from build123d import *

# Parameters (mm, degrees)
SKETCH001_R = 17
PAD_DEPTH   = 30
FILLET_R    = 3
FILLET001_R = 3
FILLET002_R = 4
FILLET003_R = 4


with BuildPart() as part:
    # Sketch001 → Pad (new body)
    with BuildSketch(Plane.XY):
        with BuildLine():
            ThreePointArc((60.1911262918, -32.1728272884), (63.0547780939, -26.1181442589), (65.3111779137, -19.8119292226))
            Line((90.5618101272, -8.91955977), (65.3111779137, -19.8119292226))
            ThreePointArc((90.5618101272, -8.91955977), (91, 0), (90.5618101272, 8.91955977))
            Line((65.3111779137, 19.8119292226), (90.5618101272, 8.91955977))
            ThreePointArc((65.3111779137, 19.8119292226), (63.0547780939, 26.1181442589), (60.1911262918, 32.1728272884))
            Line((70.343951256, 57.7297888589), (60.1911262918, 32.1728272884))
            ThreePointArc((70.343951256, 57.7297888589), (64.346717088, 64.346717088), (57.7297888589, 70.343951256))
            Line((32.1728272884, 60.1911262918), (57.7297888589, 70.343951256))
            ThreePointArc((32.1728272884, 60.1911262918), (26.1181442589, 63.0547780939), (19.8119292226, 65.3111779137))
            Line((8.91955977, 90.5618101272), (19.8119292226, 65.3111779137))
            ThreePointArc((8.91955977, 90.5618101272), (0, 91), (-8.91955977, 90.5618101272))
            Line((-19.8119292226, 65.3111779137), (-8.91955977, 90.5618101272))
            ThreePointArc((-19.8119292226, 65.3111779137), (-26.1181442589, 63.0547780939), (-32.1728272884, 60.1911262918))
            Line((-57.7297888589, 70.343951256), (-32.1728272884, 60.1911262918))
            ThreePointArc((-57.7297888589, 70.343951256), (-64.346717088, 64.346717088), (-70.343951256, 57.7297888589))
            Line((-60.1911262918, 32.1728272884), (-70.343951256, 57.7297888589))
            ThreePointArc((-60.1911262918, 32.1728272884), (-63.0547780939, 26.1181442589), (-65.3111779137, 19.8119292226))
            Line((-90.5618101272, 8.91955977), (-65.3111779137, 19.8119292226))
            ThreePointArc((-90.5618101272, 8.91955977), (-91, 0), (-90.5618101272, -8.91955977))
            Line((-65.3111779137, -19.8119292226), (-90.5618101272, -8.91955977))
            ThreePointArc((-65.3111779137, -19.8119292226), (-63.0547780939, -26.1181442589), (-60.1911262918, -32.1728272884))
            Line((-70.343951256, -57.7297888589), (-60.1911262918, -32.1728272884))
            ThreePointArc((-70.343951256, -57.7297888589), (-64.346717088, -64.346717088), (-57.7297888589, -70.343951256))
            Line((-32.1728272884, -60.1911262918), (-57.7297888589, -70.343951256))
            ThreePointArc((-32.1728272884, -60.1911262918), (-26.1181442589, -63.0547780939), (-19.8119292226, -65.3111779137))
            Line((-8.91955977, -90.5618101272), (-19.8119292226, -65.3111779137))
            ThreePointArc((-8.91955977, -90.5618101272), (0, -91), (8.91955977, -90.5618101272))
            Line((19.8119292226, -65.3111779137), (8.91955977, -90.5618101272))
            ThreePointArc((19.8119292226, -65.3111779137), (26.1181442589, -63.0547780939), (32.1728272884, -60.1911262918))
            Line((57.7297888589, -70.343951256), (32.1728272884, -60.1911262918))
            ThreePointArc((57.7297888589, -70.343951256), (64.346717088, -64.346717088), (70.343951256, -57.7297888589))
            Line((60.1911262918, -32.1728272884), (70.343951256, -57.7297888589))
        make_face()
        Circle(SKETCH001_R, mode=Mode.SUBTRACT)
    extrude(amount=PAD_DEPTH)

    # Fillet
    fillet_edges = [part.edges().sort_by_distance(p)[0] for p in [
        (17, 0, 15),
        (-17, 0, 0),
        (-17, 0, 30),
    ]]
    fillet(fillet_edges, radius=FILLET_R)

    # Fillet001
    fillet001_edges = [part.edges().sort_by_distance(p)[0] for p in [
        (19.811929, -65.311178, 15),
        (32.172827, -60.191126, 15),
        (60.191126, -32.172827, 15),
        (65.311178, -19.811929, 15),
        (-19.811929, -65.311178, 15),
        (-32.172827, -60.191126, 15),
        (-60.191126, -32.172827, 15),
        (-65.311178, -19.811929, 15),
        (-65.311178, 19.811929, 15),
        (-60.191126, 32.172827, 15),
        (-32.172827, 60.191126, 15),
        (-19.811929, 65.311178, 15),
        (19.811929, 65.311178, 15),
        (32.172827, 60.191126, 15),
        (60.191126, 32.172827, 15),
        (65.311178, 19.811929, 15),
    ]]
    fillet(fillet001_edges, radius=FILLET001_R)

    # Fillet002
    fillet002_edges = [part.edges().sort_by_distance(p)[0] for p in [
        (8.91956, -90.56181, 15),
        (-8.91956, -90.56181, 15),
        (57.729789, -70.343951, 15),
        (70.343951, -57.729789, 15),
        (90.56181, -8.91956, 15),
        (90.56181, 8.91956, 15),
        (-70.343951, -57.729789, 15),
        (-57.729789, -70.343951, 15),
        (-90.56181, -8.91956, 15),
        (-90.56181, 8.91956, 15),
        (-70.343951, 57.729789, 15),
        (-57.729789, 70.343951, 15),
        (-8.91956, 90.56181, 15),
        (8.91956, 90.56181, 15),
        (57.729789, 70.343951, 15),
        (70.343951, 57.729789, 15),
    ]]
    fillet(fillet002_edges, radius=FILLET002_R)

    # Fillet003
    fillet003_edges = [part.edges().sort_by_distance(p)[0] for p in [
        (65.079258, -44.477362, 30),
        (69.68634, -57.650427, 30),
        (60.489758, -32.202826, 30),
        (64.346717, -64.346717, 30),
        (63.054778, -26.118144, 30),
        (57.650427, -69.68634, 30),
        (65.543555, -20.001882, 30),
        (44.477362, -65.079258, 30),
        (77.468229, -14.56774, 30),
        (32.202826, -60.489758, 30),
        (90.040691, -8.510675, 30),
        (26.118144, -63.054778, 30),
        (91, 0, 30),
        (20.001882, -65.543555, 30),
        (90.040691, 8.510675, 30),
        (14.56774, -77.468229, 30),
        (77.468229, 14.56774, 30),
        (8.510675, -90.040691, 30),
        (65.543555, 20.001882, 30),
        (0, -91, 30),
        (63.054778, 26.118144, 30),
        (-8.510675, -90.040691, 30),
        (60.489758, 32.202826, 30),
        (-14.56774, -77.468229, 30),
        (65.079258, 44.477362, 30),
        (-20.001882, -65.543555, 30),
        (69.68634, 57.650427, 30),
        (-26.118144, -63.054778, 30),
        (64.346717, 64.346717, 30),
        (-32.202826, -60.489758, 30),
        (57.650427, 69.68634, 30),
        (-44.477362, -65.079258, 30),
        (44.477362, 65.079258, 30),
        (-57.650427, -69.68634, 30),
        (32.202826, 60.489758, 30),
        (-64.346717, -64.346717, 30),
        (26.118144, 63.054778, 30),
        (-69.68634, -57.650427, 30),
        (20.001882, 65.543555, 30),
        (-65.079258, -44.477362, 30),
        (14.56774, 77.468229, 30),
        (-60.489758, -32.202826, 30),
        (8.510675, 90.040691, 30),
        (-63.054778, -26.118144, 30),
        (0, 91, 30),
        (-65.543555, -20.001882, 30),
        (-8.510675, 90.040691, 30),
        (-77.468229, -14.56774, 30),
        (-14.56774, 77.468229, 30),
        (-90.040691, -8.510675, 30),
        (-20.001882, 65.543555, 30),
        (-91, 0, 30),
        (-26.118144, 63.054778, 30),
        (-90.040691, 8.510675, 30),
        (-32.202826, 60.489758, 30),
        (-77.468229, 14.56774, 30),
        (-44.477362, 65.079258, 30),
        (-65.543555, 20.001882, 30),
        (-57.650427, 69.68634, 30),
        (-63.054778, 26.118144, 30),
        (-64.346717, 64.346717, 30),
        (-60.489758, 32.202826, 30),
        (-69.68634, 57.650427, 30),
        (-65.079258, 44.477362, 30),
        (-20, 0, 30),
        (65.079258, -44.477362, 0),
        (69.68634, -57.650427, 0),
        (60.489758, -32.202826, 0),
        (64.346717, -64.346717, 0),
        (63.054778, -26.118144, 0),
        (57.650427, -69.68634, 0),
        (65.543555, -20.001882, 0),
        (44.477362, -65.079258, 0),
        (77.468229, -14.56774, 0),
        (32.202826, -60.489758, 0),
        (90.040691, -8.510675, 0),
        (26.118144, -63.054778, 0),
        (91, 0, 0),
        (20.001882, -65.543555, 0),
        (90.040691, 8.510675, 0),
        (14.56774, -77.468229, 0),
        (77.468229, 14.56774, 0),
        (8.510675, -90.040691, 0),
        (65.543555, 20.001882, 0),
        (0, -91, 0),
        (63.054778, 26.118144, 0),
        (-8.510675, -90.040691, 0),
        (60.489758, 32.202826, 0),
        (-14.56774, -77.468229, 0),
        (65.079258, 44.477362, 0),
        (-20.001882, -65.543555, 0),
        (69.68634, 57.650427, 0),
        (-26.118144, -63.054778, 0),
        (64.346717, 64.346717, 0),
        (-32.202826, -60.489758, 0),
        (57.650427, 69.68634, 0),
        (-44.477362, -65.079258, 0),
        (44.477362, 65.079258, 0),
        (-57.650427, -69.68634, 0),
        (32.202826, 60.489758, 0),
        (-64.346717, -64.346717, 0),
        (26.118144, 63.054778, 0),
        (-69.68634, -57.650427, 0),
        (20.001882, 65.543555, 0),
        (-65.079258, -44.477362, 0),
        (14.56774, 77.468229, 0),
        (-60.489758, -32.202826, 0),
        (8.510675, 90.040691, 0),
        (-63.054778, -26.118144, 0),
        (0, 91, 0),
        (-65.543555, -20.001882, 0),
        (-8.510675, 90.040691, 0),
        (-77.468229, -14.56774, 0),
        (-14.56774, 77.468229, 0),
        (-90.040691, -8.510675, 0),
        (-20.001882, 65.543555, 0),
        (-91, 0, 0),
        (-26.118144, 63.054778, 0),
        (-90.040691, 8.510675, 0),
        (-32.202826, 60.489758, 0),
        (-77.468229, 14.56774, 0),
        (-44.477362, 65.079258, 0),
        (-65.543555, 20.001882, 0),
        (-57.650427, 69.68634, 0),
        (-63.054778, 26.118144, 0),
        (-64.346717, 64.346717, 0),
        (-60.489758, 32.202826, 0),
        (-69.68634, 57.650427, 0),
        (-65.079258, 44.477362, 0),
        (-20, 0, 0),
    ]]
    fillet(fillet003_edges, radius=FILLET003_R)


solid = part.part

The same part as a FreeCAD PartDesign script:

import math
import FreeCAD as App
import Part
import Sketcher

V = App.Vector
Q = App.Units.Quantity


def edges_at(feature, points):
    """Names of the edges that pass closest to the given points."""
    edges = feature.Shape.Edges
    near = lambda p: min(range(len(edges)), key=lambda i: edges[i].distToShape(Part.Vertex(*p))[0])
    return sorted({f"Edge{near(p) + 1}" for p in points})

doc = App.newDocument("Part")
body = doc.addObject("PartDesign::Body", "Body")

sketch1 = body.newObject("Sketcher::SketchObject", "Sketch")
sketch1.AttachmentSupport = (doc.getObject("XY_Plane"), [""])
sketch1.MapMode = "FlatFace"
sketch1.addGeometry(Part.ArcOfCircle(Part.Circle(V(0, 0, 0), V(0, 0, 1), 68.25), math.radians(-28.125), math.radians(-16.875)), False)
sketch1.addGeometry(Part.LineSegment(V(65.311178, -19.811929, 0), V(90.56181, -8.91956, 0)), False)
sketch1.addGeometry(Part.ArcOfCircle(Part.Circle(V(0, 0, 0), V(0, 0, 1), 91), math.radians(-5.625), math.radians(5.625)), False)
sketch1.addGeometry(Part.LineSegment(V(90.56181, 8.91956, 0), V(65.311178, 19.811929, 0)), False)
sketch1.addGeometry(Part.ArcOfCircle(Part.Circle(V(0, 0, 0), V(0, 0, 1), 68.25), math.radians(16.875), math.radians(28.125)), False)
sketch1.addGeometry(Part.LineSegment(V(60.191126, 32.172827, 0), V(70.343951, 57.729789, 0)), False)
sketch1.addGeometry(Part.ArcOfCircle(Part.Circle(V(0, 0, 0), V(0, 0, 1), 91), math.radians(39.375), math.radians(50.625)), False)
sketch1.addGeometry(Part.LineSegment(V(57.729789, 70.343951, 0), V(32.172827, 60.191126, 0)), False)
sketch1.addGeometry(Part.ArcOfCircle(Part.Circle(V(0, 0, 0), V(0, 0, 1), 68.25), math.radians(61.875), math.radians(73.125)), False)
sketch1.addGeometry(Part.LineSegment(V(19.811929, 65.311178, 0), V(8.91956, 90.56181, 0)), False)
sketch1.addGeometry(Part.ArcOfCircle(Part.Circle(V(0, 0, 0), V(0, 0, 1), 91), math.radians(84.375), math.radians(95.625)), False)
sketch1.addGeometry(Part.LineSegment(V(-8.91956, 90.56181, 0), V(-19.811929, 65.311178, 0)), False)
sketch1.addGeometry(Part.ArcOfCircle(Part.Circle(V(0, 0, 0), V(0, 0, 1), 68.25), math.radians(106.875), math.radians(118.125)), False)
sketch1.addGeometry(Part.LineSegment(V(-32.172827, 60.191126, 0), V(-57.729789, 70.343951, 0)), False)
sketch1.addGeometry(Part.ArcOfCircle(Part.Circle(V(0, 0, 0), V(0, 0, 1), 91), math.radians(129.375), math.radians(140.625)), False)
sketch1.addGeometry(Part.LineSegment(V(-70.343951, 57.729789, 0), V(-60.191126, 32.172827, 0)), False)
sketch1.addGeometry(Part.ArcOfCircle(Part.Circle(V(0, 0, 0), V(0, 0, 1), 68.25), math.radians(151.875), math.radians(163.125)), False)
sketch1.addGeometry(Part.LineSegment(V(-65.311178, 19.811929, 0), V(-90.56181, 8.91956, 0)), False)
sketch1.addGeometry(Part.ArcOfCircle(Part.Circle(V(0, 0, 0), V(0, 0, 1), 91), math.radians(174.375), math.radians(185.625)), False)
sketch1.addGeometry(Part.LineSegment(V(-90.56181, -8.91956, 0), V(-65.311178, -19.811929, 0)), False)
sketch1.addGeometry(Part.ArcOfCircle(Part.Circle(V(0, 0, 0), V(0, 0, 1), 68.25), math.radians(-163.125), math.radians(-151.875)), False)
sketch1.addGeometry(Part.LineSegment(V(-60.191126, -32.172827, 0), V(-70.343951, -57.729789, 0)), False)
sketch1.addGeometry(Part.ArcOfCircle(Part.Circle(V(0, 0, 0), V(0, 0, 1), 91), math.radians(-140.625), math.radians(-129.375)), False)
sketch1.addGeometry(Part.LineSegment(V(-57.729789, -70.343951, 0), V(-32.172827, -60.191126, 0)), False)
sketch1.addGeometry(Part.ArcOfCircle(Part.Circle(V(0, 0, 0), V(0, 0, 1), 68.25), math.radians(-118.125), math.radians(-106.875)), False)
sketch1.addGeometry(Part.LineSegment(V(-19.811929, -65.311178, 0), V(-8.91956, -90.56181, 0)), False)
sketch1.addGeometry(Part.ArcOfCircle(Part.Circle(V(0, 0, 0), V(0, 0, 1), 91), math.radians(-95.625), math.radians(-84.375)), False)
sketch1.addGeometry(Part.LineSegment(V(8.91956, -90.56181, 0), V(19.811929, -65.311178, 0)), False)
sketch1.addGeometry(Part.ArcOfCircle(Part.Circle(V(0, 0, 0), V(0, 0, 1), 68.25), math.radians(-73.125), math.radians(-61.875)), False)
sketch1.addGeometry(Part.LineSegment(V(32.172827, -60.191126, 0), V(57.729789, -70.343951, 0)), False)
sketch1.addGeometry(Part.ArcOfCircle(Part.Circle(V(0, 0, 0), V(0, 0, 1), 91), math.radians(-50.625), math.radians(-39.375)), False)
sketch1.addGeometry(Part.LineSegment(V(70.343951, -57.729789, 0), V(60.191126, -32.172827, 0)), False)
sketch1.addGeometry(Part.Circle(V(0, 0, 0), V(0, 0, 1), 17), False)
sketch1.addConstraint(Sketcher.Constraint("Coincident", 0, 2, 1, 1))
sketch1.addConstraint(Sketcher.Constraint("Coincident", 1, 2, 2, 1))
sketch1.addConstraint(Sketcher.Constraint("Coincident", 2, 2, 3, 1))
sketch1.addConstraint(Sketcher.Constraint("Coincident", 3, 2, 4, 1))
sketch1.addConstraint(Sketcher.Constraint("Coincident", 4, 2, 5, 1))
sketch1.addConstraint(Sketcher.Constraint("Coincident", 5, 2, 6, 1))
sketch1.addConstraint(Sketcher.Constraint("Coincident", 6, 2, 7, 1))
sketch1.addConstraint(Sketcher.Constraint("Coincident", 7, 2, 8, 1))
sketch1.addConstraint(Sketcher.Constraint("Coincident", 8, 2, 9, 1))
sketch1.addConstraint(Sketcher.Constraint("Coincident", 9, 2, 10, 1))
sketch1.addConstraint(Sketcher.Constraint("Coincident", 10, 2, 11, 1))
sketch1.addConstraint(Sketcher.Constraint("Coincident", 11, 2, 12, 1))
sketch1.addConstraint(Sketcher.Constraint("Coincident", 12, 2, 13, 1))
sketch1.addConstraint(Sketcher.Constraint("Coincident", 13, 2, 14, 1))
sketch1.addConstraint(Sketcher.Constraint("Coincident", 14, 2, 15, 1))
sketch1.addConstraint(Sketcher.Constraint("Coincident", 15, 2, 16, 1))
sketch1.addConstraint(Sketcher.Constraint("Coincident", 16, 2, 17, 1))
sketch1.addConstraint(Sketcher.Constraint("Coincident", 17, 2, 18, 1))
sketch1.addConstraint(Sketcher.Constraint("Coincident", 18, 2, 19, 1))
sketch1.addConstraint(Sketcher.Constraint("Coincident", 19, 2, 20, 1))
sketch1.addConstraint(Sketcher.Constraint("Coincident", 20, 2, 21, 1))
sketch1.addConstraint(Sketcher.Constraint("Coincident", 21, 2, 22, 1))
sketch1.addConstraint(Sketcher.Constraint("Coincident", 22, 2, 23, 1))
sketch1.addConstraint(Sketcher.Constraint("Coincident", 23, 2, 24, 1))
sketch1.addConstraint(Sketcher.Constraint("Coincident", 24, 2, 25, 1))
sketch1.addConstraint(Sketcher.Constraint("Coincident", 25, 2, 26, 1))
sketch1.addConstraint(Sketcher.Constraint("Coincident", 26, 2, 27, 1))
sketch1.addConstraint(Sketcher.Constraint("Coincident", 27, 2, 28, 1))
sketch1.addConstraint(Sketcher.Constraint("Coincident", 28, 2, 29, 1))
sketch1.addConstraint(Sketcher.Constraint("Coincident", 29, 2, 30, 1))
sketch1.addConstraint(Sketcher.Constraint("Coincident", 30, 2, 31, 1))
sketch1.addConstraint(Sketcher.Constraint("Coincident", 31, 2, 0, 1))
sketch1.addConstraint(Sketcher.Constraint("Coincident", 0, 3, -1, 1))
sketch1.addConstraint(Sketcher.Constraint("Coincident", 2, 3, -1, 1))
sketch1.addConstraint(Sketcher.Constraint("Coincident", 4, 3, -1, 1))
sketch1.addConstraint(Sketcher.Constraint("Coincident", 6, 3, -1, 1))
sketch1.addConstraint(Sketcher.Constraint("Coincident", 8, 3, -1, 1))
sketch1.addConstraint(Sketcher.Constraint("Coincident", 10, 3, -1, 1))
sketch1.addConstraint(Sketcher.Constraint("Coincident", 12, 3, -1, 1))
sketch1.addConstraint(Sketcher.Constraint("Coincident", 14, 3, -1, 1))
sketch1.addConstraint(Sketcher.Constraint("Coincident", 16, 3, -1, 1))
sketch1.addConstraint(Sketcher.Constraint("Coincident", 18, 3, -1, 1))
sketch1.addConstraint(Sketcher.Constraint("Coincident", 20, 3, -1, 1))
sketch1.addConstraint(Sketcher.Constraint("Coincident", 22, 3, -1, 1))
sketch1.addConstraint(Sketcher.Constraint("Coincident", 24, 3, -1, 1))
sketch1.addConstraint(Sketcher.Constraint("Coincident", 26, 3, -1, 1))
sketch1.addConstraint(Sketcher.Constraint("Coincident", 28, 3, -1, 1))
sketch1.addConstraint(Sketcher.Constraint("Coincident", 30, 3, -1, 1))
sketch1.addConstraint(Sketcher.Constraint("Coincident", 32, 3, -1, 1))
sketch1.addConstraint(Sketcher.Constraint("Equal", 0, 4))
sketch1.addConstraint(Sketcher.Constraint("Equal", 2, 6))
sketch1.addConstraint(Sketcher.Constraint("Equal", 4, 8))
sketch1.addConstraint(Sketcher.Constraint("Equal", 6, 10))
sketch1.addConstraint(Sketcher.Constraint("Equal", 8, 12))
sketch1.addConstraint(Sketcher.Constraint("Equal", 10, 14))
sketch1.addConstraint(Sketcher.Constraint("Equal", 12, 16))
sketch1.addConstraint(Sketcher.Constraint("Equal", 14, 18))
sketch1.addConstraint(Sketcher.Constraint("Equal", 16, 20))
sketch1.addConstraint(Sketcher.Constraint("Equal", 18, 22))
sketch1.addConstraint(Sketcher.Constraint("Equal", 20, 24))
sketch1.addConstraint(Sketcher.Constraint("Equal", 22, 26))
sketch1.addConstraint(Sketcher.Constraint("Equal", 24, 28))
sketch1.addConstraint(Sketcher.Constraint("Equal", 26, 30))
sketch1.addConstraint(Sketcher.Constraint("Perpendicular", 1, 9))
sketch1.addConstraint(Sketcher.Constraint("Perpendicular", 3, 11))
sketch1.addConstraint(Sketcher.Constraint("Perpendicular", 5, 13))
sketch1.addConstraint(Sketcher.Constraint("Perpendicular", 7, 15))
sketch1.addConstraint(Sketcher.Constraint("Perpendicular", 9, 17))
sketch1.addConstraint(Sketcher.Constraint("Perpendicular", 11, 19))
sketch1.addConstraint(Sketcher.Constraint("Perpendicular", 13, 21))
sketch1.addConstraint(Sketcher.Constraint("Perpendicular", 15, 23))
sketch1.addConstraint(Sketcher.Constraint("Perpendicular", 17, 25))
sketch1.addConstraint(Sketcher.Constraint("Perpendicular", 19, 27))
sketch1.addConstraint(Sketcher.Constraint("Perpendicular", 21, 29))
sketch1.addConstraint(Sketcher.Constraint("Perpendicular", 23, 31))
sketch1.addConstraint(Sketcher.Constraint("Horizontal", 9, 2, 10, 2))
sketch1.addConstraint(Sketcher.Constraint("Horizontal", 8, 2, 11, 2))
sketch1.addConstraint(Sketcher.Constraint("Horizontal", 7, 2, 12, 2))
sketch1.addConstraint(Sketcher.Constraint("Horizontal", 6, 2, 13, 2))
sketch1.addConstraint(Sketcher.Constraint("Horizontal", 5, 2, 14, 2))
sketch1.addConstraint(Sketcher.Constraint("Horizontal", 3, 2, 16, 2))
sketch1.addConstraint(Sketcher.Constraint("Horizontal", 1, 2, 18, 2))
sketch1.addConstraint(Sketcher.Constraint("Horizontal", 25, 2, 26, 2))
sketch1.addConstraint(Sketcher.Constraint("Horizontal", 23, 2, 28, 2))
sketch1.addConstraint(Sketcher.Constraint("Horizontal", 21, 2, 30, 2))
sketch1.addConstraint(Sketcher.Constraint("Vertical", 1, 2, 2, 2))
sketch1.addConstraint(Sketcher.Constraint("Vertical", 15, 2, 20, 2))
sketch1.addConstraint(Sketcher.Constraint("Vertical", 13, 2, 22, 2))
sketch1.addConstraint(Sketcher.Constraint("Vertical", 11, 2, 24, 2))
sketch1.addConstraint(Sketcher.Constraint("Equal", 3, 5))
sketch1.addConstraint(Sketcher.Constraint("Equal", 5, 7))
sketch1.addConstraint(Sketcher.Constraint("Equal", 7, 9))
sketch1.addConstraint(Sketcher.Constraint("Diameter", 32, Q("34 mm")))
sketch1.addConstraint(Sketcher.Constraint("Radius", 2, Q("91 mm")))
sketch1.addConstraint(Sketcher.Constraint("Radius", 0, Q("68.25 mm")))
sketch1.addConstraint(Sketcher.Constraint("DistanceY", 3, 2, 4, 2, Q("12.360898 mm")))
sketch1.addConstraint(Sketcher.Constraint("DistanceX", 7, 2, 4, 2, Q("28.018299 mm")))
sketch1.addConstraint(Sketcher.Constraint("DistanceX", -1, 1, 1, 2, Q("90.56181 mm")))
pad1 = body.newObject("PartDesign::Pad", "Pad")
pad1.Profile = sketch1
pad1.Length = 30
doc.recompute()

fillet = body.newObject("PartDesign::Fillet", "Fillet")
fillet.Base = (pad1, edges_at(pad1, [(17, 0, 15), (-17, 0, 0), (-17, 0, 30)]))
fillet.Radius = 3
doc.recompute()

fillet2 = body.newObject("PartDesign::Fillet", "Fillet001")
fillet2.Base = (fillet, edges_at(fillet, [
    (19.812, -65.311, 15),
    (32.173, -60.191, 15),
    (60.191, -32.173, 15),
    (65.311, -19.812, 15),
    (-19.812, -65.311, 15),
    (-32.173, -60.191, 15),
    (-60.191, -32.173, 15),
    (-65.311, -19.812, 15),
    (-65.311, 19.812, 15),
    (-60.191, 32.173, 15),
    (-32.173, 60.191, 15),
    (-19.812, 65.311, 15),
    (19.812, 65.311, 15),
    (32.173, 60.191, 15),
    (60.191, 32.173, 15),
    (65.311, 19.812, 15),
]))
fillet2.Radius = 3
doc.recompute()

fillet3 = body.newObject("PartDesign::Fillet", "Fillet002")
fillet3.Base = (fillet2, edges_at(fillet2, [
    (8.92, -90.562, 15),
    (-8.92, -90.562, 15),
    (57.73, -70.344, 15),
    (70.344, -57.73, 15),
    (90.562, -8.92, 15),
    (90.562, 8.92, 15),
    (-70.344, -57.73, 15),
    (-57.73, -70.344, 15),
    (-90.562, -8.92, 15),
    (-90.562, 8.92, 15),
    (-70.344, 57.73, 15),
    (-57.73, 70.344, 15),
    (-8.92, 90.562, 15),
    (8.92, 90.562, 15),
    (57.73, 70.344, 15),
    (70.344, 57.73, 15),
]))
fillet3.Radius = 4
doc.recompute()

fillet4 = body.newObject("PartDesign::Fillet", "Fillet003")
fillet4.Base = (fillet3, edges_at(fillet3, [
    (65.079, -44.477, 30),
    (69.686, -57.65, 30),
    (60.49, -32.203, 30),
    (64.347, -64.347, 30),
    (63.055, -26.118, 30),
    (57.65, -69.686, 30),
    (65.544, -20.002, 30),
    (44.477, -65.079, 30),
    (77.468, -14.568, 30),
    (32.203, -60.49, 30),
    (90.041, -8.511, 30),
    (26.118, -63.055, 30),
    (91, 0, 30),
    (20.002, -65.544, 30),
    (90.041, 8.511, 30),
    (14.568, -77.468, 30),
    (77.468, 14.568, 30),
    (8.511, -90.041, 30),
    (65.544, 20.002, 30),
    (0, -91, 30),
    (63.055, 26.118, 30),
    (-8.511, -90.041, 30),
    (60.49, 32.203, 30),
    (-14.568, -77.468, 30),
    (65.079, 44.477, 30),
    (-20.002, -65.544, 30),
    (69.686, 57.65, 30),
    (-26.118, -63.055, 30),
    (64.347, 64.347, 30),
    (-32.203, -60.49, 30),
    (57.65, 69.686, 30),
    (-44.477, -65.079, 30),
    (44.477, 65.079, 30),
    (-57.65, -69.686, 30),
    (32.203, 60.49, 30),
    (-64.347, -64.347, 30),
    (26.118, 63.055, 30),
    (-69.686, -57.65, 30),
    (20.002, 65.544, 30),
    (-65.079, -44.477, 30),
    (14.568, 77.468, 30),
    (-60.49, -32.203, 30),
    (8.511, 90.041, 30),
    (-63.055, -26.118, 30),
    (0, 91, 30),
    (-65.544, -20.002, 30),
    (-8.511, 90.041, 30),
    (-77.468, -14.568, 30),
    (-14.568, 77.468, 30),
    (-90.041, -8.511, 30),
    (-20.002, 65.544, 30),
    (-91, 0, 30),
    (-26.118, 63.055, 30),
    (-90.041, 8.511, 30),
    (-32.203, 60.49, 30),
    (-77.468, 14.568, 30),
    (-44.477, 65.079, 30),
    (-65.544, 20.002, 30),
    (-57.65, 69.686, 30),
    (-63.055, 26.118, 30),
    (-64.347, 64.347, 30),
    (-60.49, 32.203, 30),
    (-69.686, 57.65, 30),
    (-65.079, 44.477, 30),
    (-20, 0, 30),
    (65.079, -44.477, 0),
    (69.686, -57.65, 0),
    (60.49, -32.203, 0),
    (64.347, -64.347, 0),
    (63.055, -26.118, 0),
    (57.65, -69.686, 0),
    (65.544, -20.002, 0),
    (44.477, -65.079, 0),
    (77.468, -14.568, 0),
    (32.203, -60.49, 0),
    (90.041, -8.511, 0),
    (26.118, -63.055, 0),
    (91, 0, 0),
    (20.002, -65.544, 0),
    (90.041, 8.511, 0),
    (14.568, -77.468, 0),
    (77.468, 14.568, 0),
    (8.511, -90.041, 0),
    (65.544, 20.002, 0),
    (0, -91, 0),
    (63.055, 26.118, 0),
    (-8.511, -90.041, 0),
    (60.49, 32.203, 0),
    (-14.568, -77.468, 0),
    (65.079, 44.477, 0),
    (-20.002, -65.544, 0),
    (69.686, 57.65, 0),
    (-26.118, -63.055, 0),
    (64.347, 64.347, 0),
    (-32.203, -60.49, 0),
    (57.65, 69.686, 0),
    (-44.477, -65.079, 0),
    (44.477, 65.079, 0),
    (-57.65, -69.686, 0),
    (32.203, 60.49, 0),
    (-64.347, -64.347, 0),
    (26.118, 63.055, 0),
    (-69.686, -57.65, 0),
    (20.002, 65.544, 0),
    (-65.079, -44.477, 0),
    (14.568, 77.468, 0),
    (-60.49, -32.203, 0),
    (8.511, 90.041, 0),
    (-63.055, -26.118, 0),
    (0, 91, 0),
    (-65.544, -20.002, 0),
    (-8.511, 90.041, 0),
    (-77.468, -14.568, 0),
    (-14.568, 77.468, 0),
    (-90.041, -8.511, 0),
    (-20.002, 65.544, 0),
    (-91, 0, 0),
    (-26.118, 63.055, 0),
    (-90.041, 8.511, 0),
    (-32.203, 60.49, 0),
    (-77.468, 14.568, 0),
    (-44.477, 65.079, 0),
    (-65.544, 20.002, 0),
    (-57.65, 69.686, 0),
    (-63.055, 26.118, 0),
    (-64.347, 64.347, 0),
    (-60.49, 32.203, 0),
    (-69.686, 57.65, 0),
    (-65.079, 44.477, 0),
    (-20, 0, 0),
]))
fillet4.Radius = 4

doc.recompute()
